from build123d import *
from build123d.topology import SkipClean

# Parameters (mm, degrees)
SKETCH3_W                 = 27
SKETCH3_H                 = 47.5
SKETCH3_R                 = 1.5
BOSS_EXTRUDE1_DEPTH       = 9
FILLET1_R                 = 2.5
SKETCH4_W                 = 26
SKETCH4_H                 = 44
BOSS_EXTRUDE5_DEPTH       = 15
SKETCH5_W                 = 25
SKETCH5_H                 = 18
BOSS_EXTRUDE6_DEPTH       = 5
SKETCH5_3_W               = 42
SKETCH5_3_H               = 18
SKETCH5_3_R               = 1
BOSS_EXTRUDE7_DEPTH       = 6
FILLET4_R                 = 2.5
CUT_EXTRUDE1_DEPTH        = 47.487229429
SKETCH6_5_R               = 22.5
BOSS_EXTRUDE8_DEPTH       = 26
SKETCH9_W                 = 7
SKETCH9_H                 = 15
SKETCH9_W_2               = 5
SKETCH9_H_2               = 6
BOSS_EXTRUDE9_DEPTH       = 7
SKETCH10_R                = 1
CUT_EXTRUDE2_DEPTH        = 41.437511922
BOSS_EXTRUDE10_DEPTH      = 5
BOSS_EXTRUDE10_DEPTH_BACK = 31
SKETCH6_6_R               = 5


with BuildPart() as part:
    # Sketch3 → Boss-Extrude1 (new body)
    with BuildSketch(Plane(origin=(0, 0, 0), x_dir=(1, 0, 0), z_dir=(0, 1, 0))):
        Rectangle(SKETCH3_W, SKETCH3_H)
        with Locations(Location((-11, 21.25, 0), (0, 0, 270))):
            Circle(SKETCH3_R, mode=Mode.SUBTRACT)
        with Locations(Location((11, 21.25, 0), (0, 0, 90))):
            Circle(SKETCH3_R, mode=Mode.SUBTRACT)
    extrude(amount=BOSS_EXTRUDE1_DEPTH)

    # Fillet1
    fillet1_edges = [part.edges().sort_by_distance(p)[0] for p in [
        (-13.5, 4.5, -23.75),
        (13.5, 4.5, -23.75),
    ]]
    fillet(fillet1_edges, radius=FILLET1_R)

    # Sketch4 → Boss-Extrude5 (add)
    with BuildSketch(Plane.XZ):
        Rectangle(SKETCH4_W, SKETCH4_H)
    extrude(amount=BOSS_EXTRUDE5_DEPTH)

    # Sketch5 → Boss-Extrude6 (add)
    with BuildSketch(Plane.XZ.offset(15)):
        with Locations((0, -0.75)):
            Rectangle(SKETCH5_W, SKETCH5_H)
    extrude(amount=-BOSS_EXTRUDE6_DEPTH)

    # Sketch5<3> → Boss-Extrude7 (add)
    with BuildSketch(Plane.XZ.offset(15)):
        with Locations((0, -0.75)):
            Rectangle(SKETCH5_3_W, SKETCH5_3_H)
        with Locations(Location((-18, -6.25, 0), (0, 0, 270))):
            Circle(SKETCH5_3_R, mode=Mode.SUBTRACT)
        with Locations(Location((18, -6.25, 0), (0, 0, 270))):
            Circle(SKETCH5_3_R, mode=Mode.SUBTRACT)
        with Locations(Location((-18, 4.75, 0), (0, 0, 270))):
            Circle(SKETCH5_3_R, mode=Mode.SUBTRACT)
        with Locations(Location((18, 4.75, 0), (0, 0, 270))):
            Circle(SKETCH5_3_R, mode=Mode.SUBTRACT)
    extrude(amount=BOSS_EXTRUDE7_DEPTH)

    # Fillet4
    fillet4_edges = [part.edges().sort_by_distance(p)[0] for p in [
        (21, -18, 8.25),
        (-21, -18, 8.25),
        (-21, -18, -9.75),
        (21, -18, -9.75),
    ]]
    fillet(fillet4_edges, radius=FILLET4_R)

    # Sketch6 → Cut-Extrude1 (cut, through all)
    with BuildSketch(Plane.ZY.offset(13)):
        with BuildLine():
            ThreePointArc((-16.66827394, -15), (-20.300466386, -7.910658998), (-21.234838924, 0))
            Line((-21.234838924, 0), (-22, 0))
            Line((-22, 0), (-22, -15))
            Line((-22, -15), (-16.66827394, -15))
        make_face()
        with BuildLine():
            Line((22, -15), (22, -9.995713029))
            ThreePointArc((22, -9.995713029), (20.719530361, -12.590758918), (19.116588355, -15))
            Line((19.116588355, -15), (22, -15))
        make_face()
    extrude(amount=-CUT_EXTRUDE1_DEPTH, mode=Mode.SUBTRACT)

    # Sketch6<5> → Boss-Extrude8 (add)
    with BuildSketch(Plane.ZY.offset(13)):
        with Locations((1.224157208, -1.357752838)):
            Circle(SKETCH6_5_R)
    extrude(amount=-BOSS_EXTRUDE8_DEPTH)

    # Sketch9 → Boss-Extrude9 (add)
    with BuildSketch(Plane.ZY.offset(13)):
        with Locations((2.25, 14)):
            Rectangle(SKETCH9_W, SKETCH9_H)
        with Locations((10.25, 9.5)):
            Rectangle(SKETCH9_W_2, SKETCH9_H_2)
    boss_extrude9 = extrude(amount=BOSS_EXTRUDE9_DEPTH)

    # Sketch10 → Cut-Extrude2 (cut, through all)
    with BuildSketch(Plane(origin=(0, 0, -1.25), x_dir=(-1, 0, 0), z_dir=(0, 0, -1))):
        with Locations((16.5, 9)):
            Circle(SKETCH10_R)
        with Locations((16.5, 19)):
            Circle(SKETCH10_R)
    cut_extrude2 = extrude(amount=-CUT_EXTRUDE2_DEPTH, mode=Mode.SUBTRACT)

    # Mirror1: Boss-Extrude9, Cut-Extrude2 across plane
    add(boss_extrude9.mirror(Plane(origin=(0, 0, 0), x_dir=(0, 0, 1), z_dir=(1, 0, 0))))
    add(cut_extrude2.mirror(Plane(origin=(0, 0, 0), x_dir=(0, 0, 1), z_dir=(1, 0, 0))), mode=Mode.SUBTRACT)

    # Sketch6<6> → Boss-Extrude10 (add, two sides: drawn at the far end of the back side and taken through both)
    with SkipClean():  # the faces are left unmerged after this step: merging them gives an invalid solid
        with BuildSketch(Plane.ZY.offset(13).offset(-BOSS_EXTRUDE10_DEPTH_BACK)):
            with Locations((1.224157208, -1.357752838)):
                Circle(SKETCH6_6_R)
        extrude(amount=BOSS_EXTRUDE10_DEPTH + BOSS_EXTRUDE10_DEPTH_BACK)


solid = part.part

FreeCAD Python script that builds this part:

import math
import FreeCAD as App
import Part
import Sketcher
Q = App.Units.Quantity


def edges_at(feature, points):
    """Names of the edges that pass closest to the given points."""
    edges = feature.Shape.Edges
    near = lambda p: min(range(len(edges)), key=lambda i: edges[i].distToShape(Part.Vertex(*p))[0])
    return sorted({f"Edge{near(p) + 1}" for p in points})


def add_polygon(sketch, points):
    """Adds a closed chain of lines whose ends are joined by coincident constraints."""
    first, n = sketch.GeometryCount, len(points)
    for a, b in zip(points, points[1:] + points[:1]):
        sketch.addGeometry(Part.LineSegment(App.Vector(*a, 0), App.Vector(*b, 0)), False)
    for i in range(n):
        sketch.addConstraint(Sketcher.Constraint("Coincident", first + i, 2, first + (i + 1) % n, 1))

doc = App.newDocument("Part")
body = doc.addObject("PartDesign::Body", "Body")

sketch1 = body.newObject("Sketcher::SketchObject", "Sketch")
sketch1.AttachmentSupport = (doc.getObject("XZ_Plane"), [""])
sketch1.MapMode = "FlatFace"
add_polygon(sketch1, [(-13.5, -23.8), (-13.5, 23.8), (13.5, 23.8), (13.5, -23.8)])
sketch1.addGeometry(Part.Circle(App.Vector(-11, -21.2, 0), App.Vector(0, 0, 1), 1.5), False)
sketch1.addGeometry(Part.Circle(App.Vector(11, -21.2, 0), App.Vector(0, 0, 1), 1.5), False)
sketch1.addConstraint(Sketcher.Constraint("Vertical", 0))
sketch1.addConstraint(Sketcher.Constraint("Horizontal", 1))
sketch1.addConstraint(Sketcher.Constraint("Vertical", 2))
sketch1.addConstraint(Sketcher.Constraint("Horizontal", 3))
sketch1.addConstraint(Sketcher.Constraint("Equal", 4, 5))
sketch1.addConstraint(Sketcher.Constraint("Symmetric", 0, 2, 2, 2, -1, 1))
sketch1.addConstraint(Sketcher.Constraint("Symmetric", 4, 3, 5, 3, -2))
sketch1.addConstraint(Sketcher.Constraint("Diameter", 4, Q("3 mm")))
sketch1.addConstraint(Sketcher.Constraint("DistanceX", 1, 1, 1, 2, Q("27 mm")))
sketch1.addConstraint(Sketcher.Constraint("DistanceY", 0, 1, 0, 2, Q("47.5 mm")))
sketch1.addConstraint(Sketcher.Constraint("DistanceX", 4, 3, -1, 1, Q("11 mm")))
sketch1.addConstraint(Sketcher.Constraint("DistanceY", 4, 3, 0, 2, Q("45 mm")))
pad1 = body.newObject("PartDesign::Pad", "Pad")
pad1.Profile = sketch1
pad1.Length = 9
pad1.Reversed = True
doc.recompute()

fillet = body.newObject("PartDesign::Fillet", "Fillet")
fillet.Base = (pad1, edges_at(pad1, [(-13.5, 4.5, -23.75), (13.5, 4.5, -23.75)]))
fillet.Radius = 2.5

sketch2 = body.newObject("Sketcher::SketchObject", "Sketch001")
sketch2.AttachmentSupport = (doc.getObject("XZ_Plane"), [""])
sketch2.MapMode = "FlatFace"
add_polygon(sketch2, [(-13, 22), (-13, -22), (13, -22), (13, 22)])
sketch2.addConstraint(Sketcher.Constraint("Vertical", 0))
sketch2.addConstraint(Sketcher.Constraint("Horizontal", 1))
sketch2.addConstraint(Sketcher.Constraint("Vertical", 2))
sketch2.addConstraint(Sketcher.Constraint("Horizontal", 3))
sketch2.addConstraint(Sketcher.Constraint("Symmetric", 0, 2, 2, 2, -1, 1))
sketch2.addConstraint(Sketcher.Constraint("DistanceX", 1, 1, 1, 2, Q("26 mm")))
sketch2.addConstraint(Sketcher.Constraint("DistanceY", 0, 2, 0, 1, Q("44 mm")))
pad2 = body.newObject("PartDesign::Pad", "Pad001")
pad2.Profile = sketch2
pad2.Length = 15

sketch3 = body.newObject("Sketcher::SketchObject", "Sketch002")
sketch3.AttachmentSupport = (doc.getObject("XZ_Plane"), [""])
sketch3.MapMode = "FlatFace"
sketch3.AttachmentOffset = App.Placement(App.Vector(0, 0, 15), App.Rotation())
add_polygon(sketch3, [(-12, 8), (-12, -10), (12, -10), (12, 8)])
sketch3.addConstraint(Sketcher.Constraint("Vertical", 0))
sketch3.addConstraint(Sketcher.Constraint("Horizontal", 1))
sketch3.addConstraint(Sketcher.Constraint("Vertical", 2))
sketch3.addConstraint(Sketcher.Constraint("Horizontal", 3))
sketch3.addConstraint(Sketcher.Constraint("DistanceX", 1, 1, 1, 2, Q("25 mm")))
sketch3.addConstraint(Sketcher.Constraint("DistanceY", 0, 2, 0, 1, Q("18 mm")))
sketch3.addConstraint(Sketcher.Constraint("DistanceX", 0, 2, -1, 1, Q("12.5 mm")))
sketch3.addConstraint(Sketcher.Constraint("DistanceY", 0, 2, -1, 1, Q("9.75 mm")))
pad3 = body.newObject("PartDesign::Pad", "Pad002")
pad3.Profile = sketch3
pad3.Length = 5
pad3.Reversed = True

sketch4 = body.newObject("Sketcher::SketchObject", "Sketch003")
sketch4.AttachmentSupport = (doc.getObject("XZ_Plane"), [""])
sketch4.MapMode = "FlatFace"
sketch4.AttachmentOffset = App.Placement(App.Vector(0, 0, 15), App.Rotation())
add_polygon(sketch4, [(-21, 8.2), (-21, -9.8), (21, -9.8), (21, 8.2)])
sketch4.addGeometry(Part.Circle(App.Vector(-18, -6.2, 0), App.Vector(0, 0, 1), 1), False)
sketch4.addGeometry(Part.Circle(App.Vector(18, -6.2, 0), App.Vector(0, 0, 1), 1), False)
sketch4.addGeometry(Part.Circle(App.Vector(-18, 4.8, 0), App.Vector(0, 0, 1), 1), False)
sketch4.addGeometry(Part.Circle(App.Vector(18, 4.8, 0), App.Vector(0, 0, 1), 1), False)
sketch4.addConstraint(Sketcher.Constraint("Vertical", 0))
sketch4.addConstraint(Sketcher.Constraint("Horizontal", 1))
sketch4.addConstraint(Sketcher.Constraint("Vertical", 2))
sketch4.addConstraint(Sketcher.Constraint("Horizontal", 3))
sketch4.addConstraint(Sketcher.Constraint("Equal", 4, 5))
sketch4.addConstraint(Sketcher.Constraint("Equal", 5, 6))
sketch4.addConstraint(Sketcher.Constraint("Equal", 6, 7))
sketch4.addConstraint(Sketcher.Constraint("Symmetric", 4, 3, 5, 3, -2))
sketch4.addConstraint(Sketcher.Constraint("Symmetric", 6, 3, 7, 3, -2))
sketch4.addConstraint(Sketcher.Constraint("Vertical", 4, 3, 6, 3))
sketch4.addConstraint(Sketcher.Constraint("Diameter", 4, Q("2 mm")))
sketch4.addConstraint(Sketcher.Constraint("DistanceX", 1, 1, 1, 2, Q("42 mm")))
sketch4.addConstraint(Sketcher.Constraint("DistanceY", 0, 2, 0, 1, Q("18 mm")))
sketch4.addConstraint(Sketcher.Constraint("DistanceX", 4, 3, -1, 1, Q("18 mm")))
sketch4.addConstraint(Sketcher.Constraint("DistanceX", 0, 2, -1, 1, Q("21 mm")))
sketch4.addConstraint(Sketcher.Constraint("DistanceY", 4, 3, 6, 3, Q("11 mm")))
sketch4.addConstraint(Sketcher.Constraint("DistanceY", 0, 2, 4, 3, Q("3.5 mm")))
sketch4.addConstraint(Sketcher.Constraint("DistanceY", 4, 3, -1, 1, Q("6.25 mm")))
pad4 = body.newObject("PartDesign::Pad", "Pad003")
pad4.Profile = sketch4
pad4.Length = 6
doc.recompute()

fillet2 = body.newObject("PartDesign::Fillet", "Fillet001")
fillet2.Base = (pad4, edges_at(pad4, [
    (21, -18, 8.25),
    (-21, -18, 8.25),
    (-21, -18, -9.75),
    (21, -18, -9.75),
]))
fillet2.Radius = 2.5

sketch5 = body.newObject("Sketcher::SketchObject", "Sketch004")
sketch5.AttachmentSupport = (doc.getObject("YZ_Plane"), [""])
sketch5.MapMode = "FlatFace"
sketch5.AttachmentOffset = App.Placement(App.Vector(0, 0, -13), App.Rotation())
sketch5.addGeometry(Part.ArcOfCircle(Part.Circle(App.Vector(-1.4, 1.2, 0), App.Vector(0, 0, 1), 22.5), math.radians(-127), math.radians(-87)), False)
sketch5.addGeometry(Part.LineSegment(App.Vector(0, -21.2, 0), App.Vector(0, -22, 0)), False)
sketch5.addGeometry(Part.LineSegment(App.Vector(0, -22, 0), App.Vector(-15, -22, 0)), False)
sketch5.addGeometry(Part.LineSegment(App.Vector(-15, -22, 0), App.Vector(-15, -16.7, 0)), False)
sketch5.addGeometry(Part.LineSegment(App.Vector(-15, 22, 0), App.Vector(-10, 22, 0)), False)
sketch5.addGeometry(Part.ArcOfCircle(Part.Circle(App.Vector(-1.4, 1.2, 0), App.Vector(0, 0, 1), 22.5), math.radians(112.58), math.radians(127.32)), False)
sketch5.addGeometry(Part.LineSegment(App.Vector(-15, 19.1, 0), App.Vector(-15, 22, 0)), False)
sketch5.addConstraint(Sketcher.Constraint("Coincident", 0, 2, 1, 1))
sketch5.addConstraint(Sketcher.Constraint("Coincident", 1, 2, 2, 1))
sketch5.addConstraint(Sketcher.Constraint("Coincident", 2, 2, 3, 1))
sketch5.addConstraint(Sketcher.Constraint("Coincident", 3, 2, 0, 1))
sketch5.addConstraint(Sketcher.Constraint("Coincident", 4, 2, 5, 1))
sketch5.addConstraint(Sketcher.Constraint("Coincident", 5, 2, 6, 1))
sketch5.addConstraint(Sketcher.Constraint("Coincident", 6, 2, 4, 1))
sketch5.addConstraint(Sketcher.Constraint("Vertical", 1))
sketch5.addConstraint(Sketcher.Constraint("Horizontal", 2))
sketch5.addConstraint(Sketcher.Constraint("Vertical", 3))
sketch5.addConstraint(Sketcher.Constraint("Horizontal", 4))
sketch5.addConstraint(Sketcher.Constraint("Vertical", 6))
sketch5.addConstraint(Sketcher.Constraint("Coincident", 5, 3, 0, 3))
sketch5.addConstraint(Sketcher.Constraint("Equal", 0, 5))
sketch5.addConstraint(Sketcher.Constraint("Symmetric", 2, 2, 6, 2, -1))
sketch5.addConstraint(Sketcher.Constraint("PointOnObject", 0, 2, -2))
sketch5.addConstraint(Sketcher.Constraint("Radius", 0, Q("22.5 mm")))
sketch5.addConstraint(Sketcher.Constraint("DistanceX", 2, 2, 2, 1, Q("15 mm")))
sketch5.addConstraint(Sketcher.Constraint("DistanceY", 1, 2, -1, 1, Q("22 mm")))
sketch5.addConstraint(Sketcher.Constraint("DistanceY", 1, 2, 1, 1, Q("0.765161 mm")))
sketch5.addConstraint(Sketcher.Constraint("DistanceY", 6, 1, 6, 2, Q("2.883412 mm")))
pocket1 = body.newObject("PartDesign::Pocket", "Pocket")
pocket1.Profile = sketch5
pocket1.Type = "ThroughAll"
pocket1.Reversed = True

sketch6 = body.newObject("Sketcher::SketchObject", "Sketch005")
sketch6.AttachmentSupport = (doc.getObject("YZ_Plane"), [""])
sketch6.MapMode = "FlatFace"
sketch6.AttachmentOffset = App.Placement(App.Vector(0, 0, -13), App.Rotation())
sketch6.addGeometry(Part.Circle(App.Vector(-1, 1, 0), App.Vector(0, 0, 1), 22), False)
sketch6.addConstraint(Sketcher.Constraint("Diameter", 0, Q("45 mm")))
sketch6.addConstraint(Sketcher.Constraint("DistanceX", 0, 3, -1, 1, Q("1.357753 mm")))
sketch6.addConstraint(Sketcher.Constraint("DistanceY", -1, 1, 0, 3, Q("1.224157 mm")))
pad5 = body.newObject("PartDesign::Pad", "Pad004")
pad5.Profile = sketch6
pad5.Length = 26

sketch7 = body.newObject("Sketcher::SketchObject", "Sketch006")
sketch7.AttachmentSupport = (doc.getObject("YZ_Plane"), [""])
sketch7.MapMode = "FlatFace"
sketch7.AttachmentOffset = App.Placement(App.Vector(0, 0, -13), App.Rotation())
add_polygon(sketch7, [(22, -1), (6, -1), (6, 6), (22, 6)])
add_polygon(sketch7, [(12, 8), (6, 8), (6, 13), (12, 13)])
sketch7.addConstraint(Sketcher.Constraint("Horizontal", 0))
sketch7.addConstraint(Sketcher.Constraint("Vertical", 1))
sketch7.addConstraint(Sketcher.Constraint("Horizontal", 2))
sketch7.addConstraint(Sketcher.Constraint("Vertical", 3))
sketch7.addConstraint(Sketcher.Constraint("Horizontal", 4))
sketch7.addConstraint(Sketcher.Constraint("Vertical", 5))
sketch7.addConstraint(Sketcher.Constraint("Horizontal", 6))
sketch7.addConstraint(Sketcher.Constraint("Vertical", 7))
sketch7.addConstraint(Sketcher.Constraint("Vertical", 1, 2, 4, 2))
sketch7.addConstraint(Sketcher.Constraint("DistanceX", 0, 2, 0, 1, Q("15 mm")))
sketch7.addConstraint(Sketcher.Constraint("DistanceX", 4, 2, 4, 1, Q("6 mm")))
sketch7.addConstraint(Sketcher.Constraint("DistanceY", 1, 1, 1, 2, Q("7 mm")))
sketch7.addConstraint(Sketcher.Constraint("DistanceY", 5, 1, 5, 2, Q("5 mm")))
sketch7.addConstraint(Sketcher.Constraint("DistanceY", 1, 2, 4, 2, Q("2 mm")))
sketch7.addConstraint(Sketcher.Constraint("DistanceX", -1, 1, 0, 2, Q("6.5 mm")))
sketch7.addConstraint(Sketcher.Constraint("DistanceY", 0, 2, -1, 1, Q("1.25 mm")))
pad6 = body.newObject("PartDesign::Pad", "Pad005")
pad6.Profile = sketch7
pad6.Length = 7
pad6.Reversed = True

sketch8 = body.newObject("Sketcher::SketchObject", "Sketch007")
sketch8.AttachmentSupport = (doc.getObject("XY_Plane"), [""])
sketch8.MapMode = "FlatFace"
sketch8.AttachmentOffset = App.Placement(App.Vector(0, 0, -1.25), App.Rotation())
sketch8.addGeometry(Part.Circle(App.Vector(-16.5, 9, 0), App.Vector(0, 0, 1), 1), False)
sketch8.addGeometry(Part.Circle(App.Vector(-16.5, 19, 0), App.Vector(0, 0, 1), 1), False)
sketch8.addConstraint(Sketcher.Constraint("Equal", 0, 1))
sketch8.addConstraint(Sketcher.Constraint("Vertical", 0, 3, 1, 3))
sketch8.addConstraint(Sketcher.Constraint("Diameter", 0, Q("2 mm")))
sketch8.addConstraint(Sketcher.Constraint("DistanceY", -1, 1, 0, 3, Q("9 mm")))
sketch8.addConstraint(Sketcher.Constraint("DistanceY", -1, 1, 1, 3, Q("19 mm")))
sketch8.addConstraint(Sketcher.Constraint("DistanceX", 0, 3, -1, 1, Q("16.5 mm")))
pocket2 = body.newObject("PartDesign::Pocket", "Pocket001")
pocket2.Profile = sketch8
pocket2.Type = "ThroughAll"
pocket2.Reversed = True
doc.recompute()

mirrored = body.newObject("PartDesign::Mirrored", "Mirrored")
mirrored.Originals = [pad6, pocket2]
mirrored.MirrorPlane = (doc.getObject("YZ_Plane"), [""])
body.Tip = mirrored

sketch9 = body.newObject("Sketcher::SketchObject", "Sketch008")
sketch9.AttachmentSupport = (doc.getObject("YZ_Plane"), [""])
sketch9.MapMode = "FlatFace"
sketch9.AttachmentOffset = App.Placement(App.Vector(0, 0, -13), App.Rotation())
sketch9.addGeometry(Part.Circle(App.Vector(-1, 1, 0), App.Vector(0, 0, 1), 5), False)
sketch9.addConstraint(Sketcher.Constraint("Diameter", 0, Q("10 mm")))
sketch9.addConstraint(Sketcher.Constraint("DistanceX", 0, 3, -1, 1, Q("1.357753 mm")))
sketch9.addConstraint(Sketcher.Constraint("DistanceY", -1, 1, 0, 3, Q("1.224157 mm")))
pad7 = body.newObject("PartDesign::Pad", "Pad006")
pad7.Profile = sketch9
pad7.Type = "TwoLengths"
pad7.Length = 5
pad7.Length2 = 31
pad7.Reversed = True

doc.recompute()
